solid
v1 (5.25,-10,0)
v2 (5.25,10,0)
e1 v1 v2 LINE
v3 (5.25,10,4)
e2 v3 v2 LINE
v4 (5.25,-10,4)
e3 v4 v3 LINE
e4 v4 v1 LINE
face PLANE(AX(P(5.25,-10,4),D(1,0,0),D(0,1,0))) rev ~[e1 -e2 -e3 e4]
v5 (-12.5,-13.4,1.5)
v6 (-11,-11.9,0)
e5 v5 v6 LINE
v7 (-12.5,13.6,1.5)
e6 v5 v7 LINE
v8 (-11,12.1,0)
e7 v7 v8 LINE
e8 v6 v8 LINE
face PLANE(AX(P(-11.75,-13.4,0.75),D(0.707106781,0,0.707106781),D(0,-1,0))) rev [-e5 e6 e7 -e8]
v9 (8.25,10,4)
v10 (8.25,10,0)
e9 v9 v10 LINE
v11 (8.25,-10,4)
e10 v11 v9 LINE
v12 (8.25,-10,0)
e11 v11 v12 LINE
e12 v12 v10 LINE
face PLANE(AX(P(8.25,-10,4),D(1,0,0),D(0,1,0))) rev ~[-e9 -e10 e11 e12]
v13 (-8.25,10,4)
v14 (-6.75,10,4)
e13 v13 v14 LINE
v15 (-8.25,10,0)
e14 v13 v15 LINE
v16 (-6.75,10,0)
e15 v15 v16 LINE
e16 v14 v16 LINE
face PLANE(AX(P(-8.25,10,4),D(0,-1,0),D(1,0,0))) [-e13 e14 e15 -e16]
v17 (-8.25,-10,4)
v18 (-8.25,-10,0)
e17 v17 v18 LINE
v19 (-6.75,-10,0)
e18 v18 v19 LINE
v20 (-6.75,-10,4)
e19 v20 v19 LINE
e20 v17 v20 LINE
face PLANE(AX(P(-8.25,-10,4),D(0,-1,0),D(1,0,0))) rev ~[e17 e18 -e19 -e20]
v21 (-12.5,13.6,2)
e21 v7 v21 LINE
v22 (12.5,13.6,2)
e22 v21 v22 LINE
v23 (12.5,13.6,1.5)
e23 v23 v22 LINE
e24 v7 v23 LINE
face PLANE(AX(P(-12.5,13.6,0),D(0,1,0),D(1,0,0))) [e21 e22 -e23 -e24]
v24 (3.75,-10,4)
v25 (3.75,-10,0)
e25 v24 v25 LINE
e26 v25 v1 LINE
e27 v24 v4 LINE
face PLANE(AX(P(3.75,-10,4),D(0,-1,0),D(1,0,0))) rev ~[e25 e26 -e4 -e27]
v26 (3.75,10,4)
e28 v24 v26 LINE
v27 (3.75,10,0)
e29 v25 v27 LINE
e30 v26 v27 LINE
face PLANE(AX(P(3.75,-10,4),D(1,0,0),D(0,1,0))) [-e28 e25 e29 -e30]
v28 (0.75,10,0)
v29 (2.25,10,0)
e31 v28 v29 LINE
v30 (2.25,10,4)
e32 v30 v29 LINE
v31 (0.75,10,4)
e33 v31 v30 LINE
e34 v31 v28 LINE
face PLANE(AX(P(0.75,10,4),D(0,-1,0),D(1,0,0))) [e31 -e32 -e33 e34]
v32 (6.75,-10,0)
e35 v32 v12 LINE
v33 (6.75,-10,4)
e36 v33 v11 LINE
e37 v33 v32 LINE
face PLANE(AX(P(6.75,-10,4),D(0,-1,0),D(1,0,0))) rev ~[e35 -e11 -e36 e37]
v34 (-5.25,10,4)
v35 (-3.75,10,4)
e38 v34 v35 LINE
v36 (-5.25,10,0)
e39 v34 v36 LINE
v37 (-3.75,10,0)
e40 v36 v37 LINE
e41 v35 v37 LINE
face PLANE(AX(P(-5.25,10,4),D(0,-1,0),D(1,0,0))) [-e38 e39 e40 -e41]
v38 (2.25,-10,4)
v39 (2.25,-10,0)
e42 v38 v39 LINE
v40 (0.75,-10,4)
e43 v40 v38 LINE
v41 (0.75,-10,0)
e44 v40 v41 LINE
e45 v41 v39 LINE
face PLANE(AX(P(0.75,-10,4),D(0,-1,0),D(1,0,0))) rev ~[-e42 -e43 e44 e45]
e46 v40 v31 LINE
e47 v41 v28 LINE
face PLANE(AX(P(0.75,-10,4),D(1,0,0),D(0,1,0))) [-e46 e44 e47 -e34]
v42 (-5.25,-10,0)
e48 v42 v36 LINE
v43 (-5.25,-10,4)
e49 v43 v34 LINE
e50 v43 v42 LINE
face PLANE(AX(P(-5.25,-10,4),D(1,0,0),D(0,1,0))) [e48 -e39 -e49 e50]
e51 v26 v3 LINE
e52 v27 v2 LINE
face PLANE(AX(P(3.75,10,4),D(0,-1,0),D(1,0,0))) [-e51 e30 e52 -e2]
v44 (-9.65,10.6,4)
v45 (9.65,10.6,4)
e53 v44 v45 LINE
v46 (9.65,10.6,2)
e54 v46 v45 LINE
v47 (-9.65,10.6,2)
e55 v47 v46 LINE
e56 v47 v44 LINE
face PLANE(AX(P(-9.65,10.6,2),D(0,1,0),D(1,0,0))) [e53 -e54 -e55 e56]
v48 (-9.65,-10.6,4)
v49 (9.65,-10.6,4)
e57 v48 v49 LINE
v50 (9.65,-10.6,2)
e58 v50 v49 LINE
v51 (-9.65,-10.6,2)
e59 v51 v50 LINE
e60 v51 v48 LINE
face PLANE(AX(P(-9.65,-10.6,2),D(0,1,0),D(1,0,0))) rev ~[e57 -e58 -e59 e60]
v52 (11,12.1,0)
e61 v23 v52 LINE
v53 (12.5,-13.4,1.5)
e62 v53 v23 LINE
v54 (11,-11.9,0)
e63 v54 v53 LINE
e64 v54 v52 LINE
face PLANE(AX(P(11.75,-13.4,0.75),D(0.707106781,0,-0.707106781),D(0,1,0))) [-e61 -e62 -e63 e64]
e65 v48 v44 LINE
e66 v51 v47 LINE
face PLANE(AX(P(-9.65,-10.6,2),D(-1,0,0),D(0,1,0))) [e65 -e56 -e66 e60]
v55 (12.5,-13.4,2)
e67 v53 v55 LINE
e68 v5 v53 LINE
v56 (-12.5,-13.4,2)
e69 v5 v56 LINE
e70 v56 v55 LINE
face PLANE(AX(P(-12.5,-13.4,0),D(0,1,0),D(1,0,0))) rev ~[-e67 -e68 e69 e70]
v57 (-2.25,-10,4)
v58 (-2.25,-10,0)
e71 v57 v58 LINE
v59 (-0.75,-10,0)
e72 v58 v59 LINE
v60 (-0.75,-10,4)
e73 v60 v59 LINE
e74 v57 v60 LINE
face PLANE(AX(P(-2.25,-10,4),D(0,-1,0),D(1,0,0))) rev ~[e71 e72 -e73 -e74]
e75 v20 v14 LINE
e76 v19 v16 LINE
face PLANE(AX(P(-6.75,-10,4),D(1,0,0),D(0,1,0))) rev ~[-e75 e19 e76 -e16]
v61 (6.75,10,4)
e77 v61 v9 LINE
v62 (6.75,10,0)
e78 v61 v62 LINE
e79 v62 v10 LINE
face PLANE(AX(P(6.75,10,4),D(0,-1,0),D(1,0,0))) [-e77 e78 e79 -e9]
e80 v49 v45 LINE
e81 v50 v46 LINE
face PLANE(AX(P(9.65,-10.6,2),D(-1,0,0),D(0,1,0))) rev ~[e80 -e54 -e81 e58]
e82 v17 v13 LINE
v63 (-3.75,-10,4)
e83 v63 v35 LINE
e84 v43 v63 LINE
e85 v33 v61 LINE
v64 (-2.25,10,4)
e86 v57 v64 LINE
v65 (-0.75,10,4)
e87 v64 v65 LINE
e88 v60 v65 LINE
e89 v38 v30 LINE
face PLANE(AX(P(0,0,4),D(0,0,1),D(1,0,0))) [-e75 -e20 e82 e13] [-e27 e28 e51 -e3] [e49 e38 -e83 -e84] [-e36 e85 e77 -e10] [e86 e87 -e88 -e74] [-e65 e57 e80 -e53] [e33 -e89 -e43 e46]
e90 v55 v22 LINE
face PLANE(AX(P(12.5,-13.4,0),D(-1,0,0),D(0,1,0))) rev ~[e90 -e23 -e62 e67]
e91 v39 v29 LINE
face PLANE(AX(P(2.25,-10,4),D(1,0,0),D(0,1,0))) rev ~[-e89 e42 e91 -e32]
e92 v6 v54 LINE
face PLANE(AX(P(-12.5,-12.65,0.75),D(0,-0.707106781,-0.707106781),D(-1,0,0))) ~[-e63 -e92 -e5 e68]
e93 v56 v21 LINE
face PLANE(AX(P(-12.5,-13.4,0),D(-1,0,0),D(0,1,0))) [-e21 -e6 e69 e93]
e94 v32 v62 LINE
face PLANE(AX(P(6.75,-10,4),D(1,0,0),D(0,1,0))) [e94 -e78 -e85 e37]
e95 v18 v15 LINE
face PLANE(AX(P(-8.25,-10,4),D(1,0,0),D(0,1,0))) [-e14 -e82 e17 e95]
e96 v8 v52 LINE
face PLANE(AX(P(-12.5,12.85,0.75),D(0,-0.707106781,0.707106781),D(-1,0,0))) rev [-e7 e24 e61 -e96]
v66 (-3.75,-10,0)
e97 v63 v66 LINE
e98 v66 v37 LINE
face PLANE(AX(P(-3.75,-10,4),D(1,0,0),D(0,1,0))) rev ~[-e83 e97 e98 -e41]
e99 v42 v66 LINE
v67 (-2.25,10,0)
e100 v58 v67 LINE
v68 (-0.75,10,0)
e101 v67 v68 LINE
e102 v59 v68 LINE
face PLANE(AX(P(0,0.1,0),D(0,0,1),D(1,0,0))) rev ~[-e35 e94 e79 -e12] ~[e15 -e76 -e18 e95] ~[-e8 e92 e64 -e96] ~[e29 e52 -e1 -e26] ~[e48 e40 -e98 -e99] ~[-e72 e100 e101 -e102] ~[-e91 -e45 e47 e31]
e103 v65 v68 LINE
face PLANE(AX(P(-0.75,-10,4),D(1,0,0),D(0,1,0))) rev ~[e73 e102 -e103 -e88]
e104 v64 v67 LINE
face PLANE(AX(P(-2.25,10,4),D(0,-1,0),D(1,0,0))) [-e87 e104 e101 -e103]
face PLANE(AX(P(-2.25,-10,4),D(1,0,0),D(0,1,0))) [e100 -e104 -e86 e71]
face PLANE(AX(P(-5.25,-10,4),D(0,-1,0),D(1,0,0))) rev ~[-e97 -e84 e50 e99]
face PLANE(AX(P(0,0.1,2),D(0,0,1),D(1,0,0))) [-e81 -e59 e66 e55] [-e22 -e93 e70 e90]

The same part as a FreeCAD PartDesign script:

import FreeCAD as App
import Part
import Sketcher
from FreeCAD import Vector


def edges_at(feature, points):
    """Names of the edges that pass closest to the given points."""
    edges = feature.Shape.Edges
    near = lambda p: min(range(len(edges)), key=lambda i: edges[i].distToShape(Part.Vertex(*p))[0])
    return sorted({f"Edge{near(p) + 1}" for p in points})

doc = App.newDocument("Part")
body = doc.addObject("PartDesign::Body", "Body")

# Sketch on XY plane
sketch1 = body.newObject("Sketcher::SketchObject", "Sketch")
sketch1.AttachmentSupport = (doc.getObject("XY_Plane"), [""])
sketch1.MapMode = "FlatFace"
sketch1.addGeometry([
    Part.LineSegment(Vector(-12, 14, 0), Vector(-12, -13, 0)),
    Part.LineSegment(Vector(-12, -13, 0), Vector(12, -13, 0)),
    Part.LineSegment(Vector(12, -13, 0), Vector(12, 14, 0)),
    Part.LineSegment(Vector(12, 14, 0), Vector(-12, 14, 0)),
], False)
sketch1.addConstraint([
    Sketcher.Constraint("Coincident", 0, 2, 1, 1),
    Sketcher.Constraint("Coincident", 1, 2, 2, 1),
    Sketcher.Constraint("Coincident", 2, 2, 3, 1),
    Sketcher.Constraint("Coincident", 3, 2, 0, 1),
    Sketcher.Constraint("Vertical", 0),
    Sketcher.Constraint("Horizontal", 1),
    Sketcher.Constraint("Vertical", 2),
    Sketcher.Constraint("Horizontal", 3),
    Sketcher.Constraint("DistanceX", 1, 1, 1, 2, 25.0),
    Sketcher.Constraint("DistanceY", 0, 2, 0, 1, 27.0),
    Sketcher.Constraint("DistanceX", 0, 2, -1, 1, 12.5),
    Sketcher.Constraint("DistanceY", 0, 2, -1, 1, 13.4),
])
pad1 = body.newObject("PartDesign::Pad", "Pad")
pad1.Profile = sketch1
pad1.Length = 2

# Sketch on XY plane
sketch2 = body.newObject("Sketcher::SketchObject", "Sketch001")
sketch2.AttachmentSupport = (doc.getObject("XY_Plane"), [""])
sketch2.MapMode = "FlatFace"
sketch2.AttachmentOffset = App.Placement(Vector(0, 0, 2), App.Rotation())
sketch2.addGeometry([
    Part.LineSegment(Vector(-10, 11, 0), Vector(-10, -11, 0)),
    Part.LineSegment(Vector(-10, -11, 0), Vector(10, -11, 0)),
    Part.LineSegment(Vector(10, -11, 0), Vector(10, 11, 0)),
    Part.LineSegment(Vector(10, 11, 0), Vector(-10, 11, 0)),
], False)
sketch2.addConstraint([
    Sketcher.Constraint("Coincident", 0, 2, 1, 1),
    Sketcher.Constraint("Coincident", 1, 2, 2, 1),
    Sketcher.Constraint("Coincident", 2, 2, 3, 1),
    Sketcher.Constraint("Coincident", 3, 2, 0, 1),
    Sketcher.Constraint("Vertical", 0),
    Sketcher.Constraint("Horizontal", 1),
    Sketcher.Constraint("Vertical", 2),
    Sketcher.Constraint("Horizontal", 3),
    Sketcher.Constraint("Symmetric", 0, 2, 2, 2, -1, 1),
    Sketcher.Constraint("DistanceX", 1, 1, 1, 2, 19.3),
    Sketcher.Constraint("DistanceY", 0, 2, 0, 1, 21.2),
])
pad2 = body.newObject("PartDesign::Pad", "Pad001")
pad2.Profile = sketch2
pad2.Length = 2

# Sketch on XY plane
sketch3 = body.newObject("Sketcher::SketchObject", "Sketch002")
sketch3.AttachmentSupport = (doc.getObject("XY_Plane"), [""])
sketch3.MapMode = "FlatFace"
sketch3.AttachmentOffset = App.Placement(Vector(0, 0, 4), App.Rotation())
sketch3.addGeometry([
    Part.LineSegment(Vector(0.8, 10, 0), Vector(0.8, -10, 0)),  # 0
    Part.LineSegment(Vector(0.8, -10, 0), Vector(2.2, -10, 0)),  # 1
    Part.LineSegment(Vector(2.2, -10, 0), Vector(2.2, 10, 0)),  # 2
    Part.LineSegment(Vector(2.2, 10, 0), Vector(0.8, 10, 0)),  # 3
    Part.LineSegment(Vector(3.8, 10, 0), Vector(3.8, -10, 0)),  # 4
    Part.LineSegment(Vector(3.8, -10, 0), Vector(5.2, -10, 0)),  # 5
    Part.LineSegment(Vector(5.2, -10, 0), Vector(5.2, 10, 0)),  # 6
    Part.LineSegment(Vector(5.2, 10, 0), Vector(3.8, 10, 0)),  # 7
    Part.LineSegment(Vector(6.8, 10, 0), Vector(6.8, -10, 0)),  # 8
    Part.LineSegment(Vector(6.8, -10, 0), Vector(8.2, -10, 0)),  # 9
    Part.LineSegment(Vector(8.2, -10, 0), Vector(8.2, 10, 0)),  # 10
    Part.LineSegment(Vector(8.2, 10, 0), Vector(6.8, 10, 0)),  # 11
    Part.LineSegment(Vector(-2.2, 10, 0), Vector(-2.2, -10, 0)),  # 12
    Part.LineSegment(Vector(-2.2, -10, 0), Vector(-0.8, -10, 0)),  # 13
    Part.LineSegment(Vector(-0.8, -10, 0), Vector(-0.8, 10, 0)),  # 14
    Part.LineSegment(Vector(-0.8, 10, 0), Vector(-2.2, 10, 0)),  # 15
    Part.LineSegment(Vector(-5.2, 10, 0), Vector(-5.2, -10, 0)),  # 16
    Part.LineSegment(Vector(-5.2, -10, 0), Vector(-3.8, -10, 0)),  # 17
    Part.LineSegment(Vector(-3.8, -10, 0), Vector(-3.8, 10, 0)),  # 18
    Part.LineSegment(Vector(-3.8, 10, 0), Vector(-5.2, 10, 0)),  # 19
    Part.LineSegment(Vector(-8.2, 10, 0), Vector(-8.2, -10, 0)),  # 20
    Part.LineSegment(Vector(-8.2, -10, 0), Vector(-6.8, -10, 0)),  # 21
    Part.LineSegment(Vector(-6.8, -10, 0), Vector(-6.8, 10, 0)),  # 22
    Part.LineSegment(Vector(-6.8, 10, 0), Vector(-8.2, 10, 0)),  # 23
], False)
sketch3.addConstraint([
    Sketcher.Constraint("Coincident", 0, 2, 1, 1),
    Sketcher.Constraint("Coincident", 1, 2, 2, 1),
    Sketcher.Constraint("Coincident", 2, 2, 3, 1),
    Sketcher.Constraint("Coincident", 3, 2, 0, 1),
    Sketcher.Constraint("Coincident", 4, 2, 5, 1),
    Sketcher.Constraint("Coincident", 5, 2, 6, 1),
    Sketcher.Constraint("Coincident", 6, 2, 7, 1),
    Sketcher.Constraint("Coincident", 7, 2, 4, 1),
    Sketcher.Constraint("Coincident", 8, 2, 9, 1),
    Sketcher.Constraint("Coincident", 9, 2, 10, 1),
    Sketcher.Constraint("Coincident", 10, 2, 11, 1),
    Sketcher.Constraint("Coincident", 11, 2, 8, 1),
    Sketcher.Constraint("Coincident", 12, 2, 13, 1),
    Sketcher.Constraint("Coincident", 13, 2, 14, 1),
    Sketcher.Constraint("Coincident", 14, 2, 15, 1),
    Sketcher.Constraint("Coincident", 15, 2, 12, 1),
    Sketcher.Constraint("Coincident", 16, 2, 17, 1),
    Sketcher.Constraint("Coincident", 17, 2, 18, 1),
    Sketcher.Constraint("Coincident", 18, 2, 19, 1),
    Sketcher.Constraint("Coincident", 19, 2, 16, 1),
    Sketcher.Constraint("Coincident", 20, 2, 21, 1),
    Sketcher.Constraint("Coincident", 21, 2, 22, 1),
    Sketcher.Constraint("Coincident", 22, 2, 23, 1),
    Sketcher.Constraint("Coincident", 23, 2, 20, 1),
    Sketcher.Constraint("Vertical", 0),
    Sketcher.Constraint("Horizontal", 1),
    Sketcher.Constraint("Vertical", 2),
    Sketcher.Constraint("Horizontal", 3),
    Sketcher.Constraint("Vertical", 4),
    Sketcher.Constraint("Horizontal", 5),
    Sketcher.Constraint("Vertical", 6),
    Sketcher.Constraint("Horizontal", 7),
    Sketcher.Constraint("Vertical", 8),
    Sketcher.Constraint("Horizontal", 9),
    Sketcher.Constraint("Vertical", 10),
    Sketcher.Constraint("Horizontal", 11),
    Sketcher.Constraint("Vertical", 12),
    Sketcher.Constraint("Horizontal", 13),
    Sketcher.Constraint("Vertical", 14),
    Sketcher.Constraint("Horizontal", 15),
    Sketcher.Constraint("Vertical", 16),
    Sketcher.Constraint("Horizontal", 17),
    Sketcher.Constraint("Vertical", 18),
    Sketcher.Constraint("Horizontal", 19),
    Sketcher.Constraint("Vertical", 20),
    Sketcher.Constraint("Horizontal", 21),
    Sketcher.Constraint("Vertical", 22),
    Sketcher.Constraint("Horizontal", 23),
    Sketcher.Constraint("Symmetric", 2, 2, 12, 2, -1, 1),
    Sketcher.Constraint("Symmetric", 0, 2, 14, 2, -1, 1),
    Sketcher.Constraint("Symmetric", 6, 2, 16, 2, -1, 1),
    Sketcher.Constraint("Symmetric", 4, 2, 18, 2, -1, 1),
    Sketcher.Constraint("Symmetric", 10, 2, 20, 2, -1, 1),
    Sketcher.Constraint("Symmetric", 8, 2, 22, 2, -1, 1),
    Sketcher.Constraint("Horizontal", 1, 2, 4, 2),
    Sketcher.Constraint("Horizontal", 3, 2, 6, 2),
    Sketcher.Constraint("Horizontal", 5, 2, 8, 2),
    Sketcher.Constraint("Horizontal", 7, 2, 10, 2),
    Sketcher.Constraint("Horizontal", 9, 2, 12, 2),
    Sketcher.Constraint("Equal", 3, 5),
    Sketcher.Constraint("Equal", 7, 9),
    Sketcher.Constraint("DistanceY", 0, 2, 0, 1, 20.0),
    Sketcher.Constraint("DistanceX", 1, 1, 1, 2, 1.5),
    Sketcher.Constraint("DistanceX", 0, 2, 4, 2, 3.0),
    Sketcher.Constraint("DistanceX", 4, 2, 8, 2, 3.0),
    Sketcher.Constraint("DistanceX", 12, 2, 0, 2, 3.0),
])
pocket1 = body.newObject("PartDesign::Pocket", "Pocket")
pocket1.Profile = sketch3
pocket1.Length = 5
doc.recompute()

chamfer = body.newObject("PartDesign::Chamfer", "Chamfer")
chamfer.Base = (pocket1, edges_at(pocket1, [
    (0, 13.6, 0),
    (12.5, 0.1, 0),
    (-12.5, 0.1, 0),
    (0, -13.4, 0),
]))
chamfer.Size = 1.5

doc.recompute()
